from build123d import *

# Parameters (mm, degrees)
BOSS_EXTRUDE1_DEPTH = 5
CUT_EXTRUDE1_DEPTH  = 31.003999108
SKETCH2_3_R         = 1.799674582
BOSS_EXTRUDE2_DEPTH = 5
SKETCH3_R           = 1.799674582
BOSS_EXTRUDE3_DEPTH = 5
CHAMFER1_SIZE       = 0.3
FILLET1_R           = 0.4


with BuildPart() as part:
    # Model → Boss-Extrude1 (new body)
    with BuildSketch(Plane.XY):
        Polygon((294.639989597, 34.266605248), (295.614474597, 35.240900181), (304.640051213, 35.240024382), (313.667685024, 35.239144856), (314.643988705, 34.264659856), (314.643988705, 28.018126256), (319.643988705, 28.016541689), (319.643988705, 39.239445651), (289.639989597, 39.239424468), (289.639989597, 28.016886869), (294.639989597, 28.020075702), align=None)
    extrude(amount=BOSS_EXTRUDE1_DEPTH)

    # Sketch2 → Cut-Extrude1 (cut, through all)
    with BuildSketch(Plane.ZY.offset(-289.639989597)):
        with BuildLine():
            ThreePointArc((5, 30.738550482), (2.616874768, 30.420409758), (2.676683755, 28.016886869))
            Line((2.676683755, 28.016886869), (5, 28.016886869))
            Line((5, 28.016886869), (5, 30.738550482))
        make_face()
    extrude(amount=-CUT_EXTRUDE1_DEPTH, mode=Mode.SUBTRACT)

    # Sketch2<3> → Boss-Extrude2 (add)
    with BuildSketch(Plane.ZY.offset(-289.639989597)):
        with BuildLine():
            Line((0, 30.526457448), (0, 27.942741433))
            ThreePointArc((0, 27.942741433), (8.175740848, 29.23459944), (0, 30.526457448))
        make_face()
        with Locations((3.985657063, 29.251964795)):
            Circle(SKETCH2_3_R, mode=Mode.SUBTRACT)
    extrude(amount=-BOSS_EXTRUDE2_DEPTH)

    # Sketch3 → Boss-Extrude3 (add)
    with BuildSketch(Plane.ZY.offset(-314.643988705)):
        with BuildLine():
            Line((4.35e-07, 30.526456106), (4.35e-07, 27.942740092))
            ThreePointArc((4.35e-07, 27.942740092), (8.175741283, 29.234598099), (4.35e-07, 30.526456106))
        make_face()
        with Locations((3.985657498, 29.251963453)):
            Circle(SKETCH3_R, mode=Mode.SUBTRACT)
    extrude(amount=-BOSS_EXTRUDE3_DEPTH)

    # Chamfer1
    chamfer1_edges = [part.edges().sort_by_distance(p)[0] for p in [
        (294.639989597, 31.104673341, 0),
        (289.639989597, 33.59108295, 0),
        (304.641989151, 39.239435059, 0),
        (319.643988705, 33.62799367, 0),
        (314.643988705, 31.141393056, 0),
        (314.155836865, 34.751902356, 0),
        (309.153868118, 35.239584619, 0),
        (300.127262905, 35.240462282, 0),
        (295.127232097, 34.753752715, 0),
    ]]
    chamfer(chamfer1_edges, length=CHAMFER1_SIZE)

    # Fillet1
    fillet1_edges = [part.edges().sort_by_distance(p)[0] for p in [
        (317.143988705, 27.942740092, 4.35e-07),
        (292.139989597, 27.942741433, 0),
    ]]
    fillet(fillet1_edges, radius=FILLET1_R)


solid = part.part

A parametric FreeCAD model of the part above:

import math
import FreeCAD as App
import Part
import Sketcher
from FreeCAD import Vector
Q = App.Units.Quantity


def edges_at(feature, points):
    """Names of the edges that pass closest to the given points."""
    edges = feature.Shape.Edges
    near = lambda p: min(range(len(edges)), key=lambda i: edges[i].distToShape(Part.Vertex(*p))[0])
    return sorted({f"Edge{near(p) + 1}" for p in points})

doc = App.newDocument("Part")
body = doc.addObject("PartDesign::Body", "Body")

# Sketch on XY plane
sketch1 = body.newObject("Sketcher::SketchObject", "Sketch")
sketch1.AttachmentSupport = (doc.getObject("XY_Plane"), [""])
sketch1.MapMode = "FlatFace"
sketch1.addGeometry(Part.LineSegment(Vector(294.6, 34.3, 0), Vector(295.6, 35.2, 0)), False)
sketch1.addGeometry(Part.LineSegment(Vector(295.6, 35.2, 0), Vector(304.6, 35.2, 0)), False)
sketch1.addGeometry(Part.LineSegment(Vector(304.6, 35.2, 0), Vector(313.7, 35.2, 0)), False)
sketch1.addGeometry(Part.LineSegment(Vector(313.7, 35.2, 0), Vector(314.6, 34.3, 0)), False)
sketch1.addGeometry(Part.LineSegment(Vector(314.6, 34.3, 0), Vector(314.6, 28, 0)), False)
sketch1.addGeometry(Part.LineSegment(Vector(314.6, 28, 0), Vector(319.6, 28, 0)), False)
sketch1.addGeometry(Part.LineSegment(Vector(319.6, 28, 0), Vector(319.6, 39.2, 0)), False)
sketch1.addGeometry(Part.LineSegment(Vector(319.6, 39.2, 0), Vector(289.6, 39.2, 0)), False)
sketch1.addGeometry(Part.LineSegment(Vector(289.6, 39.2, 0), Vector(289.6, 28, 0)), False)
sketch1.addGeometry(Part.LineSegment(Vector(289.6, 28, 0), Vector(294.6, 28, 0)), False)
sketch1.addGeometry(Part.LineSegment(Vector(294.6, 28, 0), Vector(294.6, 34.3, 0)), False)
sketch1.addConstraint(Sketcher.Constraint("Coincident", 0, 2, 1, 1))
sketch1.addConstraint(Sketcher.Constraint("Coincident", 1, 2, 2, 1))
sketch1.addConstraint(Sketcher.Constraint("Coincident", 2, 2, 3, 1))
sketch1.addConstraint(Sketcher.Constraint("Coincident", 3, 2, 4, 1))
sketch1.addConstraint(Sketcher.Constraint("Coincident", 4, 2, 5, 1))
sketch1.addConstraint(Sketcher.Constraint("Coincident", 5, 2, 6, 1))
sketch1.addConstraint(Sketcher.Constraint("Coincident", 6, 2, 7, 1))
sketch1.addConstraint(Sketcher.Constraint("Coincident", 7, 2, 8, 1))
sketch1.addConstraint(Sketcher.Constraint("Coincident", 8, 2, 9, 1))
sketch1.addConstraint(Sketcher.Constraint("Coincident", 9, 2, 10, 1))
sketch1.addConstraint(Sketcher.Constraint("Coincident", 10, 2, 0, 1))
sketch1.addConstraint(Sketcher.Constraint("Vertical", 4))
sketch1.addConstraint(Sketcher.Constraint("Vertical", 6))
sketch1.addConstraint(Sketcher.Constraint("Vertical", 8))
sketch1.addConstraint(Sketcher.Constraint("Vertical", 10))
sketch1.addConstraint(Sketcher.Constraint("Parallel", 1, 2))
sketch1.addConstraint(Sketcher.Constraint("Equal", 5, 9))
sketch1.addConstraint(Sketcher.Constraint("Distance", 5, Q("5 mm")))
sketch1.addConstraint(Sketcher.Constraint("Distance", 7, Q("30.003999 mm")))
sketch1.addConstraint(Sketcher.Constraint("DistanceY", 10, 1, 10, 2, Q("6.24653 mm")))
sketch1.addConstraint(Sketcher.Constraint("DistanceY", -1, 1, 0, 2, Q("35.2409 mm")))
sketch1.addConstraint(Sketcher.Constraint("DistanceY", 4, 2, 1, 2, Q("7.221898 mm")))
sketch1.addConstraint(Sketcher.Constraint("DistanceY", 2, 2, 6, 2, Q("4.000301 mm")))
sketch1.addConstraint(Sketcher.Constraint("DistanceY", 1, 2, 7, 2, Q("3.9994 mm")))
sketch1.addConstraint(Sketcher.Constraint("DistanceY", 4, 2, 4, 1, Q("6.246534 mm")))
sketch1.addConstraint(Sketcher.Constraint("DistanceY", 6, 1, 6, 2, Q("11.222904 mm")))
sketch1.addConstraint(Sketcher.Constraint("DistanceY", 8, 2, 8, 1, Q("11.222538 mm")))
sketch1.addConstraint(Sketcher.Constraint("DistanceX", -1, 1, 1, 2, Q("304.640051 mm")))
sketch1.addConstraint(Sketcher.Constraint("DistanceX", -1, 1, 3, 2, Q("314.643989 mm")))
sketch1.addConstraint(Sketcher.Constraint("DistanceY", -1, 1, 3, 2, Q("34.26466 mm")))
sketch1.addConstraint(Sketcher.Constraint("DistanceX", 0, 2, 2, 2, Q("18.05321 mm")))
sketch1.addConstraint(Sketcher.Constraint("DistanceY", 8, 2, 9, 2, Q("0.003189 mm")))
sketch1.addConstraint(Sketcher.Constraint("Distance", 0, Q("1.377996 mm")))
pad1 = body.newObject("PartDesign::Pad", "Pad")
pad1.Profile = sketch1
pad1.Length = 5

# Sketch on YZ plane
sketch2 = body.newObject("Sketcher::SketchObject", "Sketch001")
sketch2.AttachmentSupport = (doc.getObject("YZ_Plane"), [""])
sketch2.MapMode = "FlatFace"
sketch2.AttachmentOffset = App.Placement(Vector(0, 0, 289.63999), App.Rotation())
sketch2.addGeometry(Part.ArcOfCircle(Part.Circle(Vector(29.3, 4, 0), Vector(0, 0, 1), 1.8), math.radians(-133), math.radians(34)), False)
sketch2.addGeometry(Part.LineSegment(Vector(28, 2.7, 0), Vector(28, 5, 0)), False)
sketch2.addGeometry(Part.LineSegment(Vector(28, 5, 0), Vector(30.7, 5, 0)), False)
sketch2.addConstraint(Sketcher.Constraint("Coincident", 0, 1, 1, 1))
sketch2.addConstraint(Sketcher.Constraint("Coincident", 1, 2, 2, 1))
sketch2.addConstraint(Sketcher.Constraint("Coincident", 2, 2, 0, 2))
sketch2.addConstraint(Sketcher.Constraint("Vertical", 1))
sketch2.addConstraint(Sketcher.Constraint("Horizontal", 2))
sketch2.addConstraint(Sketcher.Constraint("DistanceY", -1, 1, 1, 2, Q("5 mm")))
sketch2.addConstraint(Sketcher.Constraint("Radius", 0, Q("1.799675 mm")))
sketch2.addConstraint(Sketcher.Constraint("DistanceX", 2, 1, 2, 2, Q("2.721664 mm")))
sketch2.addConstraint(Sketcher.Constraint("DistanceY", 1, 1, 1, 2, Q("2.323316 mm")))
sketch2.addConstraint(Sketcher.Constraint("DistanceX", -1, 1, 2, 2, Q("30.73855 mm")))
pocket1 = body.newObject("PartDesign::Pocket", "Pocket")
pocket1.Profile = sketch2
pocket1.Type = "ThroughAll"
pocket1.Reversed = True

# Sketch on YZ plane
sketch3 = body.newObject("Sketcher::SketchObject", "Sketch002")
sketch3.AttachmentSupport = (doc.getObject("YZ_Plane"), [""])
sketch3.MapMode = "FlatFace"
sketch3.AttachmentOffset = App.Placement(Vector(0, 0, 289.63999), App.Rotation())
sketch3.addGeometry(Part.LineSegment(Vector(30.5, 0, 0), Vector(27.9, 0, 0)), False)
sketch3.addGeometry(Part.ArcOfCircle(Part.Circle(Vector(29.2, 4, 0), Vector(0, 0, 1), 4.2), math.radians(-72), math.radians(252)), False)
sketch3.addGeometry(Part.Circle(Vector(29.3, 4, 0), Vector(0, 0, 1), 1.8), False)
sketch3.addConstraint(Sketcher.Constraint("Coincident", 0, 1, 1, 1))
sketch3.addConstraint(Sketcher.Constraint("Coincident", 1, 2, 0, 2))
sketch3.addConstraint(Sketcher.Constraint("Horizontal", 0))
sketch3.addConstraint(Sketcher.Constraint("PointOnObject", 0, 1, -1))
sketch3.addConstraint(Sketcher.Constraint("Diameter", 2, Q("3.599349 mm")))
sketch3.addConstraint(Sketcher.Constraint("Radius", 1, Q("4.189934 mm")))
sketch3.addConstraint(Sketcher.Constraint("DistanceX", -1, 1, 1, 3, Q("29.234599 mm")))
sketch3.addConstraint(Sketcher.Constraint("DistanceX", 0, 2, 0, 1, Q("2.583716 mm")))
sketch3.addConstraint(Sketcher.Constraint("DistanceY", 2, 3, 1, 3, Q("0.000149 mm")))
sketch3.addConstraint(Sketcher.Constraint("DistanceX", -1, 1, 2, 3, Q("29.251965 mm")))
pad2 = body.newObject("PartDesign::Pad", "Pad001")
pad2.Profile = sketch3
pad2.Length = 5

# Sketch on YZ plane
sketch4 = body.newObject("Sketcher::SketchObject", "Sketch003")
sketch4.AttachmentSupport = (doc.getObject("YZ_Plane"), [""])
sketch4.MapMode = "FlatFace"
sketch4.AttachmentOffset = App.Placement(Vector(0, 0, 314.643989), App.Rotation())
sketch4.addGeometry(Part.LineSegment(Vector(30.5, 0, 0), Vector(27.9, 0, 0)), False)
sketch4.addGeometry(Part.ArcOfCircle(Part.Circle(Vector(29.2, 4, 0), Vector(0, 0, 1), 4.2), math.radians(-72), math.radians(252)), False)
sketch4.addGeometry(Part.Circle(Vector(29.3, 4, 0), Vector(0, 0, 1), 1.8), False)
sketch4.addConstraint(Sketcher.Constraint("Coincident", 0, 1, 1, 1))
sketch4.addConstraint(Sketcher.Constraint("Coincident", 1, 2, 0, 2))
sketch4.addConstraint(Sketcher.Constraint("Horizontal", 0))
sketch4.addConstraint(Sketcher.Constraint("PointOnObject", 0, 1, -1))
sketch4.addConstraint(Sketcher.Constraint("Diameter", 2, Q("3.599349 mm")))
sketch4.addConstraint(Sketcher.Constraint("Radius", 1, Q("4.189934 mm")))
sketch4.addConstraint(Sketcher.Constraint("DistanceX", -1, 1, 1, 3, Q("29.234598 mm")))
sketch4.addConstraint(Sketcher.Constraint("DistanceX", 0, 2, 0, 1, Q("2.583716 mm")))
sketch4.addConstraint(Sketcher.Constraint("DistanceY", 2, 3, 1, 3, Q("0.000149 mm")))
sketch4.addConstraint(Sketcher.Constraint("DistanceX", -1, 1, 2, 3, Q("29.251963 mm")))
pad3 = body.newObject("PartDesign::Pad", "Pad002")
pad3.Profile = sketch4
pad3.Length = 5
doc.recompute()

chamfer = body.newObject("PartDesign::Chamfer", "Chamfer")
chamfer.Base = (pad3, edges_at(pad3, [
    (294.64, 31.105, 0),
    (289.64, 33.591, 0),
    (304.642, 39.239, 0),
    (319.644, 33.628, 0),
    (314.644, 31.141, 0),
    (314.156, 34.752, 0),
    (309.154, 35.24, 0),
    (300.127, 35.24, 0),
    (295.127, 34.754, 0),
]))
chamfer.Size = 0.3
doc.recompute()

fillet = body.newObject("PartDesign::Fillet", "Fillet")
fillet.Base = (chamfer, edges_at(chamfer, [(317.144, 27.943, 0), (292.14, 27.943, 0)]))
fillet.Radius = 0.4

doc.recompute()
